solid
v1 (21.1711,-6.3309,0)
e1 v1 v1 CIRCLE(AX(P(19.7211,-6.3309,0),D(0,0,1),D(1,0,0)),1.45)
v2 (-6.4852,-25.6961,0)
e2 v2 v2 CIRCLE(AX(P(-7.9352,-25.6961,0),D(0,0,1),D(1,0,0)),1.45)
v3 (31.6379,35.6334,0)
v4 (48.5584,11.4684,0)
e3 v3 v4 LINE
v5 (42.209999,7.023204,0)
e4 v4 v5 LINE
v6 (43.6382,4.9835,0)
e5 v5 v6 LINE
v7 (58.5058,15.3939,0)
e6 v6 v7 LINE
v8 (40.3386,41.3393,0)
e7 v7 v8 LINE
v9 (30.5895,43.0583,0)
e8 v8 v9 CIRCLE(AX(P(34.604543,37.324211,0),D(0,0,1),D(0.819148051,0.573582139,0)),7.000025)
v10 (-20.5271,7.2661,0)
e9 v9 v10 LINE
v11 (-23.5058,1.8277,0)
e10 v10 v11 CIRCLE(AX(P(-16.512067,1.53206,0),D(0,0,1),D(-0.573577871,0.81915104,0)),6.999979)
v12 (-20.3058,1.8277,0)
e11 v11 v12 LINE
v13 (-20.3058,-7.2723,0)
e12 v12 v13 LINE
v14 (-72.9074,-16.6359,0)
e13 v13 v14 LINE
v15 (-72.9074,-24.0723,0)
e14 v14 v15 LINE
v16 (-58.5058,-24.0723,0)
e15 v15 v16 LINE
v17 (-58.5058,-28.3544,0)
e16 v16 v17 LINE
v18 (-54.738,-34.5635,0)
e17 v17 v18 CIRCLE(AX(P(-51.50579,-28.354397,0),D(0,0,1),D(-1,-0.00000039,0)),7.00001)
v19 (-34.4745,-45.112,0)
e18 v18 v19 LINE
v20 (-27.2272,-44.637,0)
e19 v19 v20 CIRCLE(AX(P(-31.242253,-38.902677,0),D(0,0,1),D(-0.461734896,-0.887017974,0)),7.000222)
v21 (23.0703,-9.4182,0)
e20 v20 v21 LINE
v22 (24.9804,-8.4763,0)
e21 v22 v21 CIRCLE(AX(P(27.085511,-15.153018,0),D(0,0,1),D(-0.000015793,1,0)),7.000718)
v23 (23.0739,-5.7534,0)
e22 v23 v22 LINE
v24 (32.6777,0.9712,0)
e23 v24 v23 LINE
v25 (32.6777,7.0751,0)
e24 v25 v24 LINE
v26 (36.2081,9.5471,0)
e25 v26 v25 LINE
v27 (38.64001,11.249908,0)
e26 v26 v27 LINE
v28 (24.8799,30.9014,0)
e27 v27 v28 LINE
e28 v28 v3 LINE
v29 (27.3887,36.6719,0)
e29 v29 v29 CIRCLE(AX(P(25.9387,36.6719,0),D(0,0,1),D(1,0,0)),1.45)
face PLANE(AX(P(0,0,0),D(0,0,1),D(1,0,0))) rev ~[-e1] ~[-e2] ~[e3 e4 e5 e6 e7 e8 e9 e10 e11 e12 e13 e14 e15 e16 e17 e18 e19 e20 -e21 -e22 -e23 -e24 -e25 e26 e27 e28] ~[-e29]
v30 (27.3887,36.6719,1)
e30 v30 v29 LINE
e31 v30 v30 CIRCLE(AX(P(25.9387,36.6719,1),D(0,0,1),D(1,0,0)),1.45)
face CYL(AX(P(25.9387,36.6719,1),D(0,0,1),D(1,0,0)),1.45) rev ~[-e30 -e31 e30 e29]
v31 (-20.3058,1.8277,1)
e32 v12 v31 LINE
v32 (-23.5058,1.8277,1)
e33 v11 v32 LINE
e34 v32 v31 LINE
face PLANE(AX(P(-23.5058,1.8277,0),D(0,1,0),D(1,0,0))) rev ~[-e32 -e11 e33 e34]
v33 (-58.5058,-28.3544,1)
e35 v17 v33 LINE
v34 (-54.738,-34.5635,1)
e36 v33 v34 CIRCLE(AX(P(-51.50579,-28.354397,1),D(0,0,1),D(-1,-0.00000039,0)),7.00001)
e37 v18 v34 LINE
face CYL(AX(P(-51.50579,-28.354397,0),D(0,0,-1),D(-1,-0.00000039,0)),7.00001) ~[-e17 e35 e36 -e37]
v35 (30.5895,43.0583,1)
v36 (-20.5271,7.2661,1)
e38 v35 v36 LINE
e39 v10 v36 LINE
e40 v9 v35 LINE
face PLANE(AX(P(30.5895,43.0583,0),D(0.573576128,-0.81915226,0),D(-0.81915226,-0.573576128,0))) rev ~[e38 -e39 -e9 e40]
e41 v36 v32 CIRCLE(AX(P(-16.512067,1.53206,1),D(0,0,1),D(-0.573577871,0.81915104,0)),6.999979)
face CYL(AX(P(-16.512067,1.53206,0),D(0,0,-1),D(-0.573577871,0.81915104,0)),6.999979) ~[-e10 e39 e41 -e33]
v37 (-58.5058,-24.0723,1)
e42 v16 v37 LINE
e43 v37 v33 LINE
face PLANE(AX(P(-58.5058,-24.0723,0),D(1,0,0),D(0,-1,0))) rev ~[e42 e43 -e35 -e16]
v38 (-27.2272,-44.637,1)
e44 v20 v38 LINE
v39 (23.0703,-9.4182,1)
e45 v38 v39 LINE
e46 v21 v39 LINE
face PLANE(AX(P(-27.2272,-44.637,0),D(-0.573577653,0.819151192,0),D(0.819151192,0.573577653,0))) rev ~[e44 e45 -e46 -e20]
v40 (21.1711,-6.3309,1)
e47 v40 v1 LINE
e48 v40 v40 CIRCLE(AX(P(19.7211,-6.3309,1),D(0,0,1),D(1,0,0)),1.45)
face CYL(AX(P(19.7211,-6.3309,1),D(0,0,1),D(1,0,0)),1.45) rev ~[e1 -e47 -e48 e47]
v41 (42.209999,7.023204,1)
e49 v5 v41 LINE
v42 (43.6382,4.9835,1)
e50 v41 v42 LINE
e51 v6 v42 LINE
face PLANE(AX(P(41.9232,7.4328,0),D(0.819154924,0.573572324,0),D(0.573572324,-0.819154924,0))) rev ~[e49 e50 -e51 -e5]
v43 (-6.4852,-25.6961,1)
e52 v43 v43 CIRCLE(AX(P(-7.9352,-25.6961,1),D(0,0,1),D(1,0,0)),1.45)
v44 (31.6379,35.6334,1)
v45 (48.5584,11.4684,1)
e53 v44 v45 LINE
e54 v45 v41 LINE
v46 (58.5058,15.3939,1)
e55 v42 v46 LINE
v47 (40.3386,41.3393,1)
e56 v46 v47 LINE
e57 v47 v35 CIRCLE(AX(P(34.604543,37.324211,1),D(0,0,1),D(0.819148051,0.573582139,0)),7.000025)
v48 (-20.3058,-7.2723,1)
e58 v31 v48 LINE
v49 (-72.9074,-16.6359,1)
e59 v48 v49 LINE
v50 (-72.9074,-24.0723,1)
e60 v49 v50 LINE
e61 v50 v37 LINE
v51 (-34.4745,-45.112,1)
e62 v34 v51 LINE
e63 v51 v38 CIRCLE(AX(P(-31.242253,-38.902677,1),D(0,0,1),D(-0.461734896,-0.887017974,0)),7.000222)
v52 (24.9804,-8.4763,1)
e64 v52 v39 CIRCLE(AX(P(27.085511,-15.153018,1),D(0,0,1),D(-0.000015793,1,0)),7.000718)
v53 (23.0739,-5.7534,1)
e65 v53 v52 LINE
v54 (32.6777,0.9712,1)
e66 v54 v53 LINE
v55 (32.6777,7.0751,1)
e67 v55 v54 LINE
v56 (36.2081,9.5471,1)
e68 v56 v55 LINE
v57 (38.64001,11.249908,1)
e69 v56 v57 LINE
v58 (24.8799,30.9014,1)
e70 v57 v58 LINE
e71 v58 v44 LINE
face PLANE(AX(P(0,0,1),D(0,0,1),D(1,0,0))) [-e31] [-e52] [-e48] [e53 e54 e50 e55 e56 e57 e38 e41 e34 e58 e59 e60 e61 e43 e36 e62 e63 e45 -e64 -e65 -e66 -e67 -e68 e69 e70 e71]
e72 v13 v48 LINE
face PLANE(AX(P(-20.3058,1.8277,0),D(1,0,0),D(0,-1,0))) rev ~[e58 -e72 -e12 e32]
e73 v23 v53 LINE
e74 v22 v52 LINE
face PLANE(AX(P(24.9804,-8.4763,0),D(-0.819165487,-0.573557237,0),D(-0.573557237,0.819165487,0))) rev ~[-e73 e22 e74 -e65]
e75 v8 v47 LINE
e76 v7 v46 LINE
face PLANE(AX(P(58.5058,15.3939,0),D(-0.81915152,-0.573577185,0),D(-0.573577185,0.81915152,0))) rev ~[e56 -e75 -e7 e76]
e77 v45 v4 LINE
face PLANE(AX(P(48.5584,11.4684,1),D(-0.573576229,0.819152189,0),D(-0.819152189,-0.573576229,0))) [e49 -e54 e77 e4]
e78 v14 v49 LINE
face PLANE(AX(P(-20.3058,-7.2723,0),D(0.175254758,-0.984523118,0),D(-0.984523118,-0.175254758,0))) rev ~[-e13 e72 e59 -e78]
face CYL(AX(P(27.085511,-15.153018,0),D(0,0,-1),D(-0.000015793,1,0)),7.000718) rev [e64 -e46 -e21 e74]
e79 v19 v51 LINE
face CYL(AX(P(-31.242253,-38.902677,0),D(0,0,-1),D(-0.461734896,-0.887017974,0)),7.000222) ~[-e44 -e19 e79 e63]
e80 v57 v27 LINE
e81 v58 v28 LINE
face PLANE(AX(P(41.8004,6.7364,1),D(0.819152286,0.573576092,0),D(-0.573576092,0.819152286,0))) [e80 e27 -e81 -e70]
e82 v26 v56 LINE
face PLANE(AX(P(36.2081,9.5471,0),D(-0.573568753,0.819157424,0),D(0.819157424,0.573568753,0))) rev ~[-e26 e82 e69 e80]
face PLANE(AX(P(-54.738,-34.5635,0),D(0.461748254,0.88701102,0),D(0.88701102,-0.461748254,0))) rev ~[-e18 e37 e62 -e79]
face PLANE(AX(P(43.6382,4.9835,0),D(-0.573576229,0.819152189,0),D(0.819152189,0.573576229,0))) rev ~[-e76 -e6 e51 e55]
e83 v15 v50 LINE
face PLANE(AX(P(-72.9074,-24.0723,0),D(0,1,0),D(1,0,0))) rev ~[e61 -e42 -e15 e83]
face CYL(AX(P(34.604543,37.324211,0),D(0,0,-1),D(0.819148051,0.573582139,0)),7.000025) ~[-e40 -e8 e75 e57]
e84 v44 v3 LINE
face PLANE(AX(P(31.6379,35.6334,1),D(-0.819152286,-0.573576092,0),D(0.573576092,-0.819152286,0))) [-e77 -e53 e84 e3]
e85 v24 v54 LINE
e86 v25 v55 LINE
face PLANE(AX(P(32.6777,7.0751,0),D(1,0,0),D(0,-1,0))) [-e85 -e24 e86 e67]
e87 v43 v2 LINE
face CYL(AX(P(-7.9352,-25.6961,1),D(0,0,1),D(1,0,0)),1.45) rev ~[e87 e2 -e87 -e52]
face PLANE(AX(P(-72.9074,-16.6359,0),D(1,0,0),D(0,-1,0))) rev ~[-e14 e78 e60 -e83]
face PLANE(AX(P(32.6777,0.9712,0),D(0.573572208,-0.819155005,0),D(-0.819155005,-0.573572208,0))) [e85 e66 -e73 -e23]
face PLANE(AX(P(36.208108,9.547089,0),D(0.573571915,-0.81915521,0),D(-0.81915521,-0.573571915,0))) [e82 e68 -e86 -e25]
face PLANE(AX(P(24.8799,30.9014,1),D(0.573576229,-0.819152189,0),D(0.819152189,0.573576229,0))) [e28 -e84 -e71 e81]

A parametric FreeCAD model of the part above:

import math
import FreeCAD as App
import Part
import Sketcher
Q = App.Units.Quantity

doc = App.newDocument("Part")
body = doc.addObject("PartDesign::Body", "Body")

sketch1 = body.newObject("Sketcher::SketchObject", "Sketch")
sketch1.AttachmentSupport = (doc.getObject("XY_Plane"), [""])
sketch1.MapMode = "FlatFace"
sketch1.addGeometry([
    Part.LineSegment(App.Vector(25, -8.5, 0), App.Vector(23.1, -5.8, 0)),
    Part.LineSegment(App.Vector(23.1, -5.8, 0), App.Vector(32.7, 1, 0)),
    Part.LineSegment(App.Vector(32.7, 1, 0), App.Vector(32.7, 7.1, 0)),
    Part.LineSegment(App.Vector(32.7, 7.1, 0), App.Vector(36.2, 9.5, 0)),
    Part.LineSegment(App.Vector(36.2, 9.5, 0), App.Vector(39, 11.5, 0)),
    Part.LineSegment(App.Vector(39, 11.5, 0), App.Vector(41.9, 7.4, 0)),
    Part.LineSegment(App.Vector(41.9, 7.4, 0), App.Vector(43.6, 5, 0)),
    Part.LineSegment(App.Vector(43.6, 5, 0), App.Vector(58.5, 15.4, 0)),
    Part.LineSegment(App.Vector(58.5, 15.4, 0), App.Vector(40.3, 41.3, 0)),
    Part.ArcOfCircle(Part.Circle(App.Vector(34.6, 37.3, 0), App.Vector(0, 0, 1), 7), math.radians(35), math.radians(125)),
    Part.LineSegment(App.Vector(30.6, 43.1, 0), App.Vector(-20.5, 7.3, 0)),
    Part.ArcOfCircle(Part.Circle(App.Vector(-16.5, 1.5, 0), App.Vector(0, 0, 1), 7), math.radians(125), math.radians(178)),
    Part.LineSegment(App.Vector(-23.5, 1.8, 0), App.Vector(-20.3, 1.8, 0)),
    Part.LineSegment(App.Vector(-20.3, 1.8, 0), App.Vector(-20.3, -7.3, 0)),
    Part.LineSegment(App.Vector(-20.3, -7.3, 0), App.Vector(-72.9, -16.6, 0)),
    Part.LineSegment(App.Vector(-72.9, -16.6, 0), App.Vector(-72.9, -24.1, 0)),
    Part.LineSegment(App.Vector(-72.9, -24.1, 0), App.Vector(-58.5, -24.1, 0)),
    Part.LineSegment(App.Vector(-58.5, -24.1, 0), App.Vector(-58.5, -28.4, 0)),
    Part.ArcOfCircle(Part.Circle(App.Vector(-51.5, -28.4, 0), App.Vector(0, 0, 1), 7), math.radians(180), math.radians(243)),
    Part.LineSegment(App.Vector(-54.7, -34.6, 0), App.Vector(-34.5, -45.1, 0)),
    Part.ArcOfCircle(Part.Circle(App.Vector(-31.2, -38.9, 0), App.Vector(0, 0, 1), 7), math.radians(-117), math.radians(-55)),
    Part.LineSegment(App.Vector(-27.2, -44.6, 0), App.Vector(23.1, -9.4, 0)),
    Part.ArcOfCircle(Part.Circle(App.Vector(27.1, -15.2, 0), App.Vector(0, 0, 1), 7), math.radians(107.5), math.radians(125)),
], False)
sketch1.addConstraint([
    Sketcher.Constraint("Coincident", 0, 2, 1, 1),
    Sketcher.Constraint("Coincident", 1, 2, 2, 1),
    Sketcher.Constraint("Coincident", 2, 2, 3, 1),
    Sketcher.Constraint("Coincident", 3, 2, 4, 1),
    Sketcher.Constraint("Coincident", 4, 2, 5, 1),
    Sketcher.Constraint("Coincident", 5, 2, 6, 1),
    Sketcher.Constraint("Coincident", 6, 2, 7, 1),
    Sketcher.Constraint("Coincident", 7, 2, 8, 1),
    Sketcher.Constraint("Tangent", 8, 2, 9, 1),
    Sketcher.Constraint("Tangent", 9, 2, 10, 1),
    Sketcher.Constraint("Tangent", 10, 2, 11, 1),
    Sketcher.Constraint("Coincident", 11, 2, 12, 1),
    Sketcher.Constraint("Coincident", 12, 2, 13, 1),
    Sketcher.Constraint("Coincident", 13, 2, 14, 1),
    Sketcher.Constraint("Coincident", 14, 2, 15, 1),
    Sketcher.Constraint("Coincident", 15, 2, 16, 1),
    Sketcher.Constraint("Coincident", 16, 2, 17, 1),
    Sketcher.Constraint("Tangent", 17, 2, 18, 1),
    Sketcher.Constraint("Tangent", 18, 2, 19, 1),
    Sketcher.Constraint("Tangent", 19, 2, 20, 1),
    Sketcher.Constraint("Tangent", 20, 2, 21, 1),
    Sketcher.Constraint("Tangent", 21, 2, 22, 2),
    Sketcher.Constraint("Coincident", 22, 1, 0, 1),
    Sketcher.Constraint("Vertical", 2),
    Sketcher.Constraint("Horizontal", 12),
    Sketcher.Constraint("Vertical", 13),
    Sketcher.Constraint("Vertical", 15),
    Sketcher.Constraint("Horizontal", 16),
    Sketcher.Constraint("Vertical", 17),
    Sketcher.Constraint("Equal", 9, 11),
    Sketcher.Constraint("Equal", 11, 18),
    Sketcher.Constraint("Equal", 18, 20),
    Sketcher.Constraint("Equal", 20, 22),
    Sketcher.Constraint("Perpendicular", 0, 1),
    Sketcher.Constraint("Parallel", 1, 3),
    Sketcher.Constraint("Parallel", 3, 4),
    Sketcher.Constraint("Perpendicular", 4, 5),
    Sketcher.Constraint("Parallel", 5, 6),
    Sketcher.Constraint("Perpendicular", 6, 7),
    Sketcher.Constraint("Perpendicular", 7, 8),
    Sketcher.Constraint("Perpendicular", 8, 10),
    Sketcher.Constraint("Parallel", 10, 21),
    Sketcher.Constraint("Radius", 9, 7.0),
    Sketcher.Constraint("Angle", 1, Q("34.9997 deg")),
    Sketcher.Constraint("DistanceX", 12, 1, 12, 2, 3.2),
    Sketcher.Constraint("DistanceY", 13, 2, 13, 1, 9.1),
    Sketcher.Constraint("Angle", 19, Q("-27.5 deg")),
    Sketcher.Constraint("DistanceX", 18, 3, 11, 2, 28.0),
    Sketcher.Constraint("DistanceY", 15, 2, 13, 2, 16.8),
    Sketcher.Constraint("Distance", 5, 5.01),
    Sketcher.Constraint("Distance", 6, 2.99),
    Sketcher.Constraint("Distance", 7, 18.15),
    Sketcher.Constraint("DistanceY", 2, 1, 2, 2, 6.104),
    Sketcher.Constraint("DistanceY", 17, 2, 17, 1, 4.282),
    Sketcher.Constraint("DistanceX", 20, 3, 1, 2, 63.92),
    Sketcher.Constraint("DistanceY", 0, 2, 4, 2, 17.29),
    Sketcher.Constraint("DistanceX", 3, 2, 6, 2, 7.43),
    Sketcher.Constraint("DistanceX", 9, 2, 4, 2, 8.46),
    Sketcher.Constraint("DistanceX", 21, 2, 22, 1, 1.91),
    Sketcher.Constraint("Distance", 0, 3.324),
    Sketcher.Constraint("Distance", 1, 11.724),
    Sketcher.Constraint("DistanceX", 16, 1, 16, 2, 14.4016),
    Sketcher.Constraint("DistanceY", 15, 2, 15, 1, 7.4364),
    Sketcher.Constraint("DistanceX", 11, 3, -1, 1, 16.512),
    Sketcher.Constraint("DistanceY", -1, 1, 11, 3, 1.532),
    Sketcher.Constraint("DistanceY", 20, 3, -1, 1, 38.903),
])
pad1 = body.newObject("PartDesign::Pad", "Pad")
pad1.Profile = sketch1
pad1.Length = 1

sketch2 = body.newObject("Sketcher::SketchObject", "Sketch001")
sketch2.AttachmentSupport = (doc.getObject("XY_Plane"), [""])
sketch2.MapMode = "FlatFace"
sketch2.AttachmentOffset = App.Placement(App.Vector(0, 0, 1), App.Rotation())
sketch2.addGeometry([
    Part.Circle(App.Vector(25.9, 36.7, 0), App.Vector(0, 0, 1), 1.4),
    Part.Circle(App.Vector(-7.9, -25.7, 0), App.Vector(0, 0, 1), 1.4),
    Part.Circle(App.Vector(19.7, -6.3, 0), App.Vector(0, 0, 1), 1.4),
], False)
sketch2.addConstraint([
    Sketcher.Constraint("Equal", 0, 1),
    Sketcher.Constraint("Equal", 1, 2),
    Sketcher.Constraint("Diameter", 0, 2.9),
    Sketcher.Constraint("DistanceY", -1, 1, 0, 3, 36.672),
    Sketcher.Constraint("DistanceY", 1, 3, -1, 1, 25.696),
    Sketcher.Constraint("DistanceX", -1, 1, 2, 3, 19.721),
    Sketcher.Constraint("DistanceY", 2, 3, -1, 1, 6.331),
    Sketcher.Constraint("DistanceX", 1, 3, 0, 3, 33.874),
    Sketcher.Constraint("DistanceX", -1, 1, 0, 3, 25.9387),
])
pocket1 = body.newObject("PartDesign::Pocket", "Pocket")
pocket1.Profile = sketch2
pocket1.Length = 1

sketch3 = body.newObject("Sketcher::SketchObject", "Sketch002")
sketch3.AttachmentSupport = (doc.getObject("XY_Plane"), [""])
sketch3.MapMode = "FlatFace"
sketch3.AttachmentOffset = App.Placement(App.Vector(0, 0, 1), App.Rotation())
sketch3.addGeometry([
    Part.LineSegment(App.Vector(49, 11, 0), App.Vector(32, 36, 0)),
    Part.LineSegment(App.Vector(32, 36, 0), App.Vector(25, 31, 0)),
    Part.LineSegment(App.Vector(25, 31, 0), App.Vector(42, 7, 0)),
    Part.LineSegment(App.Vector(42, 7, 0), App.Vector(49, 11, 0)),
], False)
sketch3.addConstraint([
    Sketcher.Constraint("Coincident", 0, 2, 1, 1),
    Sketcher.Constraint("Coincident", 1, 2, 2, 1),
    Sketcher.Constraint("Coincident", 2, 2, 3, 1),
    Sketcher.Constraint("Coincident", 3, 2, 0, 1),
    Sketcher.Constraint("Perpendicular", 0, 1),
    Sketcher.Constraint("Perpendicular", 1, 2),
    Sketcher.Constraint("Perpendicular", 2, 3),
    Sketcher.Constraint("Angle", 0, Q("125 deg")),
    Sketcher.Constraint("Distance", 0, 29.5),
    Sketcher.Constraint("Distance", 1, 8.25),
    Sketcher.Constraint("DistanceX", -1, 1, 1, 2, 24.88),
    Sketcher.Constraint("DistanceY", -1, 1, 0, 2, 35.6334),
])
pocket2 = body.newObject("PartDesign::Pocket", "Pocket001")
pocket2.Profile = sketch3
pocket2.Type = "ThroughAll"

doc.recompute()
